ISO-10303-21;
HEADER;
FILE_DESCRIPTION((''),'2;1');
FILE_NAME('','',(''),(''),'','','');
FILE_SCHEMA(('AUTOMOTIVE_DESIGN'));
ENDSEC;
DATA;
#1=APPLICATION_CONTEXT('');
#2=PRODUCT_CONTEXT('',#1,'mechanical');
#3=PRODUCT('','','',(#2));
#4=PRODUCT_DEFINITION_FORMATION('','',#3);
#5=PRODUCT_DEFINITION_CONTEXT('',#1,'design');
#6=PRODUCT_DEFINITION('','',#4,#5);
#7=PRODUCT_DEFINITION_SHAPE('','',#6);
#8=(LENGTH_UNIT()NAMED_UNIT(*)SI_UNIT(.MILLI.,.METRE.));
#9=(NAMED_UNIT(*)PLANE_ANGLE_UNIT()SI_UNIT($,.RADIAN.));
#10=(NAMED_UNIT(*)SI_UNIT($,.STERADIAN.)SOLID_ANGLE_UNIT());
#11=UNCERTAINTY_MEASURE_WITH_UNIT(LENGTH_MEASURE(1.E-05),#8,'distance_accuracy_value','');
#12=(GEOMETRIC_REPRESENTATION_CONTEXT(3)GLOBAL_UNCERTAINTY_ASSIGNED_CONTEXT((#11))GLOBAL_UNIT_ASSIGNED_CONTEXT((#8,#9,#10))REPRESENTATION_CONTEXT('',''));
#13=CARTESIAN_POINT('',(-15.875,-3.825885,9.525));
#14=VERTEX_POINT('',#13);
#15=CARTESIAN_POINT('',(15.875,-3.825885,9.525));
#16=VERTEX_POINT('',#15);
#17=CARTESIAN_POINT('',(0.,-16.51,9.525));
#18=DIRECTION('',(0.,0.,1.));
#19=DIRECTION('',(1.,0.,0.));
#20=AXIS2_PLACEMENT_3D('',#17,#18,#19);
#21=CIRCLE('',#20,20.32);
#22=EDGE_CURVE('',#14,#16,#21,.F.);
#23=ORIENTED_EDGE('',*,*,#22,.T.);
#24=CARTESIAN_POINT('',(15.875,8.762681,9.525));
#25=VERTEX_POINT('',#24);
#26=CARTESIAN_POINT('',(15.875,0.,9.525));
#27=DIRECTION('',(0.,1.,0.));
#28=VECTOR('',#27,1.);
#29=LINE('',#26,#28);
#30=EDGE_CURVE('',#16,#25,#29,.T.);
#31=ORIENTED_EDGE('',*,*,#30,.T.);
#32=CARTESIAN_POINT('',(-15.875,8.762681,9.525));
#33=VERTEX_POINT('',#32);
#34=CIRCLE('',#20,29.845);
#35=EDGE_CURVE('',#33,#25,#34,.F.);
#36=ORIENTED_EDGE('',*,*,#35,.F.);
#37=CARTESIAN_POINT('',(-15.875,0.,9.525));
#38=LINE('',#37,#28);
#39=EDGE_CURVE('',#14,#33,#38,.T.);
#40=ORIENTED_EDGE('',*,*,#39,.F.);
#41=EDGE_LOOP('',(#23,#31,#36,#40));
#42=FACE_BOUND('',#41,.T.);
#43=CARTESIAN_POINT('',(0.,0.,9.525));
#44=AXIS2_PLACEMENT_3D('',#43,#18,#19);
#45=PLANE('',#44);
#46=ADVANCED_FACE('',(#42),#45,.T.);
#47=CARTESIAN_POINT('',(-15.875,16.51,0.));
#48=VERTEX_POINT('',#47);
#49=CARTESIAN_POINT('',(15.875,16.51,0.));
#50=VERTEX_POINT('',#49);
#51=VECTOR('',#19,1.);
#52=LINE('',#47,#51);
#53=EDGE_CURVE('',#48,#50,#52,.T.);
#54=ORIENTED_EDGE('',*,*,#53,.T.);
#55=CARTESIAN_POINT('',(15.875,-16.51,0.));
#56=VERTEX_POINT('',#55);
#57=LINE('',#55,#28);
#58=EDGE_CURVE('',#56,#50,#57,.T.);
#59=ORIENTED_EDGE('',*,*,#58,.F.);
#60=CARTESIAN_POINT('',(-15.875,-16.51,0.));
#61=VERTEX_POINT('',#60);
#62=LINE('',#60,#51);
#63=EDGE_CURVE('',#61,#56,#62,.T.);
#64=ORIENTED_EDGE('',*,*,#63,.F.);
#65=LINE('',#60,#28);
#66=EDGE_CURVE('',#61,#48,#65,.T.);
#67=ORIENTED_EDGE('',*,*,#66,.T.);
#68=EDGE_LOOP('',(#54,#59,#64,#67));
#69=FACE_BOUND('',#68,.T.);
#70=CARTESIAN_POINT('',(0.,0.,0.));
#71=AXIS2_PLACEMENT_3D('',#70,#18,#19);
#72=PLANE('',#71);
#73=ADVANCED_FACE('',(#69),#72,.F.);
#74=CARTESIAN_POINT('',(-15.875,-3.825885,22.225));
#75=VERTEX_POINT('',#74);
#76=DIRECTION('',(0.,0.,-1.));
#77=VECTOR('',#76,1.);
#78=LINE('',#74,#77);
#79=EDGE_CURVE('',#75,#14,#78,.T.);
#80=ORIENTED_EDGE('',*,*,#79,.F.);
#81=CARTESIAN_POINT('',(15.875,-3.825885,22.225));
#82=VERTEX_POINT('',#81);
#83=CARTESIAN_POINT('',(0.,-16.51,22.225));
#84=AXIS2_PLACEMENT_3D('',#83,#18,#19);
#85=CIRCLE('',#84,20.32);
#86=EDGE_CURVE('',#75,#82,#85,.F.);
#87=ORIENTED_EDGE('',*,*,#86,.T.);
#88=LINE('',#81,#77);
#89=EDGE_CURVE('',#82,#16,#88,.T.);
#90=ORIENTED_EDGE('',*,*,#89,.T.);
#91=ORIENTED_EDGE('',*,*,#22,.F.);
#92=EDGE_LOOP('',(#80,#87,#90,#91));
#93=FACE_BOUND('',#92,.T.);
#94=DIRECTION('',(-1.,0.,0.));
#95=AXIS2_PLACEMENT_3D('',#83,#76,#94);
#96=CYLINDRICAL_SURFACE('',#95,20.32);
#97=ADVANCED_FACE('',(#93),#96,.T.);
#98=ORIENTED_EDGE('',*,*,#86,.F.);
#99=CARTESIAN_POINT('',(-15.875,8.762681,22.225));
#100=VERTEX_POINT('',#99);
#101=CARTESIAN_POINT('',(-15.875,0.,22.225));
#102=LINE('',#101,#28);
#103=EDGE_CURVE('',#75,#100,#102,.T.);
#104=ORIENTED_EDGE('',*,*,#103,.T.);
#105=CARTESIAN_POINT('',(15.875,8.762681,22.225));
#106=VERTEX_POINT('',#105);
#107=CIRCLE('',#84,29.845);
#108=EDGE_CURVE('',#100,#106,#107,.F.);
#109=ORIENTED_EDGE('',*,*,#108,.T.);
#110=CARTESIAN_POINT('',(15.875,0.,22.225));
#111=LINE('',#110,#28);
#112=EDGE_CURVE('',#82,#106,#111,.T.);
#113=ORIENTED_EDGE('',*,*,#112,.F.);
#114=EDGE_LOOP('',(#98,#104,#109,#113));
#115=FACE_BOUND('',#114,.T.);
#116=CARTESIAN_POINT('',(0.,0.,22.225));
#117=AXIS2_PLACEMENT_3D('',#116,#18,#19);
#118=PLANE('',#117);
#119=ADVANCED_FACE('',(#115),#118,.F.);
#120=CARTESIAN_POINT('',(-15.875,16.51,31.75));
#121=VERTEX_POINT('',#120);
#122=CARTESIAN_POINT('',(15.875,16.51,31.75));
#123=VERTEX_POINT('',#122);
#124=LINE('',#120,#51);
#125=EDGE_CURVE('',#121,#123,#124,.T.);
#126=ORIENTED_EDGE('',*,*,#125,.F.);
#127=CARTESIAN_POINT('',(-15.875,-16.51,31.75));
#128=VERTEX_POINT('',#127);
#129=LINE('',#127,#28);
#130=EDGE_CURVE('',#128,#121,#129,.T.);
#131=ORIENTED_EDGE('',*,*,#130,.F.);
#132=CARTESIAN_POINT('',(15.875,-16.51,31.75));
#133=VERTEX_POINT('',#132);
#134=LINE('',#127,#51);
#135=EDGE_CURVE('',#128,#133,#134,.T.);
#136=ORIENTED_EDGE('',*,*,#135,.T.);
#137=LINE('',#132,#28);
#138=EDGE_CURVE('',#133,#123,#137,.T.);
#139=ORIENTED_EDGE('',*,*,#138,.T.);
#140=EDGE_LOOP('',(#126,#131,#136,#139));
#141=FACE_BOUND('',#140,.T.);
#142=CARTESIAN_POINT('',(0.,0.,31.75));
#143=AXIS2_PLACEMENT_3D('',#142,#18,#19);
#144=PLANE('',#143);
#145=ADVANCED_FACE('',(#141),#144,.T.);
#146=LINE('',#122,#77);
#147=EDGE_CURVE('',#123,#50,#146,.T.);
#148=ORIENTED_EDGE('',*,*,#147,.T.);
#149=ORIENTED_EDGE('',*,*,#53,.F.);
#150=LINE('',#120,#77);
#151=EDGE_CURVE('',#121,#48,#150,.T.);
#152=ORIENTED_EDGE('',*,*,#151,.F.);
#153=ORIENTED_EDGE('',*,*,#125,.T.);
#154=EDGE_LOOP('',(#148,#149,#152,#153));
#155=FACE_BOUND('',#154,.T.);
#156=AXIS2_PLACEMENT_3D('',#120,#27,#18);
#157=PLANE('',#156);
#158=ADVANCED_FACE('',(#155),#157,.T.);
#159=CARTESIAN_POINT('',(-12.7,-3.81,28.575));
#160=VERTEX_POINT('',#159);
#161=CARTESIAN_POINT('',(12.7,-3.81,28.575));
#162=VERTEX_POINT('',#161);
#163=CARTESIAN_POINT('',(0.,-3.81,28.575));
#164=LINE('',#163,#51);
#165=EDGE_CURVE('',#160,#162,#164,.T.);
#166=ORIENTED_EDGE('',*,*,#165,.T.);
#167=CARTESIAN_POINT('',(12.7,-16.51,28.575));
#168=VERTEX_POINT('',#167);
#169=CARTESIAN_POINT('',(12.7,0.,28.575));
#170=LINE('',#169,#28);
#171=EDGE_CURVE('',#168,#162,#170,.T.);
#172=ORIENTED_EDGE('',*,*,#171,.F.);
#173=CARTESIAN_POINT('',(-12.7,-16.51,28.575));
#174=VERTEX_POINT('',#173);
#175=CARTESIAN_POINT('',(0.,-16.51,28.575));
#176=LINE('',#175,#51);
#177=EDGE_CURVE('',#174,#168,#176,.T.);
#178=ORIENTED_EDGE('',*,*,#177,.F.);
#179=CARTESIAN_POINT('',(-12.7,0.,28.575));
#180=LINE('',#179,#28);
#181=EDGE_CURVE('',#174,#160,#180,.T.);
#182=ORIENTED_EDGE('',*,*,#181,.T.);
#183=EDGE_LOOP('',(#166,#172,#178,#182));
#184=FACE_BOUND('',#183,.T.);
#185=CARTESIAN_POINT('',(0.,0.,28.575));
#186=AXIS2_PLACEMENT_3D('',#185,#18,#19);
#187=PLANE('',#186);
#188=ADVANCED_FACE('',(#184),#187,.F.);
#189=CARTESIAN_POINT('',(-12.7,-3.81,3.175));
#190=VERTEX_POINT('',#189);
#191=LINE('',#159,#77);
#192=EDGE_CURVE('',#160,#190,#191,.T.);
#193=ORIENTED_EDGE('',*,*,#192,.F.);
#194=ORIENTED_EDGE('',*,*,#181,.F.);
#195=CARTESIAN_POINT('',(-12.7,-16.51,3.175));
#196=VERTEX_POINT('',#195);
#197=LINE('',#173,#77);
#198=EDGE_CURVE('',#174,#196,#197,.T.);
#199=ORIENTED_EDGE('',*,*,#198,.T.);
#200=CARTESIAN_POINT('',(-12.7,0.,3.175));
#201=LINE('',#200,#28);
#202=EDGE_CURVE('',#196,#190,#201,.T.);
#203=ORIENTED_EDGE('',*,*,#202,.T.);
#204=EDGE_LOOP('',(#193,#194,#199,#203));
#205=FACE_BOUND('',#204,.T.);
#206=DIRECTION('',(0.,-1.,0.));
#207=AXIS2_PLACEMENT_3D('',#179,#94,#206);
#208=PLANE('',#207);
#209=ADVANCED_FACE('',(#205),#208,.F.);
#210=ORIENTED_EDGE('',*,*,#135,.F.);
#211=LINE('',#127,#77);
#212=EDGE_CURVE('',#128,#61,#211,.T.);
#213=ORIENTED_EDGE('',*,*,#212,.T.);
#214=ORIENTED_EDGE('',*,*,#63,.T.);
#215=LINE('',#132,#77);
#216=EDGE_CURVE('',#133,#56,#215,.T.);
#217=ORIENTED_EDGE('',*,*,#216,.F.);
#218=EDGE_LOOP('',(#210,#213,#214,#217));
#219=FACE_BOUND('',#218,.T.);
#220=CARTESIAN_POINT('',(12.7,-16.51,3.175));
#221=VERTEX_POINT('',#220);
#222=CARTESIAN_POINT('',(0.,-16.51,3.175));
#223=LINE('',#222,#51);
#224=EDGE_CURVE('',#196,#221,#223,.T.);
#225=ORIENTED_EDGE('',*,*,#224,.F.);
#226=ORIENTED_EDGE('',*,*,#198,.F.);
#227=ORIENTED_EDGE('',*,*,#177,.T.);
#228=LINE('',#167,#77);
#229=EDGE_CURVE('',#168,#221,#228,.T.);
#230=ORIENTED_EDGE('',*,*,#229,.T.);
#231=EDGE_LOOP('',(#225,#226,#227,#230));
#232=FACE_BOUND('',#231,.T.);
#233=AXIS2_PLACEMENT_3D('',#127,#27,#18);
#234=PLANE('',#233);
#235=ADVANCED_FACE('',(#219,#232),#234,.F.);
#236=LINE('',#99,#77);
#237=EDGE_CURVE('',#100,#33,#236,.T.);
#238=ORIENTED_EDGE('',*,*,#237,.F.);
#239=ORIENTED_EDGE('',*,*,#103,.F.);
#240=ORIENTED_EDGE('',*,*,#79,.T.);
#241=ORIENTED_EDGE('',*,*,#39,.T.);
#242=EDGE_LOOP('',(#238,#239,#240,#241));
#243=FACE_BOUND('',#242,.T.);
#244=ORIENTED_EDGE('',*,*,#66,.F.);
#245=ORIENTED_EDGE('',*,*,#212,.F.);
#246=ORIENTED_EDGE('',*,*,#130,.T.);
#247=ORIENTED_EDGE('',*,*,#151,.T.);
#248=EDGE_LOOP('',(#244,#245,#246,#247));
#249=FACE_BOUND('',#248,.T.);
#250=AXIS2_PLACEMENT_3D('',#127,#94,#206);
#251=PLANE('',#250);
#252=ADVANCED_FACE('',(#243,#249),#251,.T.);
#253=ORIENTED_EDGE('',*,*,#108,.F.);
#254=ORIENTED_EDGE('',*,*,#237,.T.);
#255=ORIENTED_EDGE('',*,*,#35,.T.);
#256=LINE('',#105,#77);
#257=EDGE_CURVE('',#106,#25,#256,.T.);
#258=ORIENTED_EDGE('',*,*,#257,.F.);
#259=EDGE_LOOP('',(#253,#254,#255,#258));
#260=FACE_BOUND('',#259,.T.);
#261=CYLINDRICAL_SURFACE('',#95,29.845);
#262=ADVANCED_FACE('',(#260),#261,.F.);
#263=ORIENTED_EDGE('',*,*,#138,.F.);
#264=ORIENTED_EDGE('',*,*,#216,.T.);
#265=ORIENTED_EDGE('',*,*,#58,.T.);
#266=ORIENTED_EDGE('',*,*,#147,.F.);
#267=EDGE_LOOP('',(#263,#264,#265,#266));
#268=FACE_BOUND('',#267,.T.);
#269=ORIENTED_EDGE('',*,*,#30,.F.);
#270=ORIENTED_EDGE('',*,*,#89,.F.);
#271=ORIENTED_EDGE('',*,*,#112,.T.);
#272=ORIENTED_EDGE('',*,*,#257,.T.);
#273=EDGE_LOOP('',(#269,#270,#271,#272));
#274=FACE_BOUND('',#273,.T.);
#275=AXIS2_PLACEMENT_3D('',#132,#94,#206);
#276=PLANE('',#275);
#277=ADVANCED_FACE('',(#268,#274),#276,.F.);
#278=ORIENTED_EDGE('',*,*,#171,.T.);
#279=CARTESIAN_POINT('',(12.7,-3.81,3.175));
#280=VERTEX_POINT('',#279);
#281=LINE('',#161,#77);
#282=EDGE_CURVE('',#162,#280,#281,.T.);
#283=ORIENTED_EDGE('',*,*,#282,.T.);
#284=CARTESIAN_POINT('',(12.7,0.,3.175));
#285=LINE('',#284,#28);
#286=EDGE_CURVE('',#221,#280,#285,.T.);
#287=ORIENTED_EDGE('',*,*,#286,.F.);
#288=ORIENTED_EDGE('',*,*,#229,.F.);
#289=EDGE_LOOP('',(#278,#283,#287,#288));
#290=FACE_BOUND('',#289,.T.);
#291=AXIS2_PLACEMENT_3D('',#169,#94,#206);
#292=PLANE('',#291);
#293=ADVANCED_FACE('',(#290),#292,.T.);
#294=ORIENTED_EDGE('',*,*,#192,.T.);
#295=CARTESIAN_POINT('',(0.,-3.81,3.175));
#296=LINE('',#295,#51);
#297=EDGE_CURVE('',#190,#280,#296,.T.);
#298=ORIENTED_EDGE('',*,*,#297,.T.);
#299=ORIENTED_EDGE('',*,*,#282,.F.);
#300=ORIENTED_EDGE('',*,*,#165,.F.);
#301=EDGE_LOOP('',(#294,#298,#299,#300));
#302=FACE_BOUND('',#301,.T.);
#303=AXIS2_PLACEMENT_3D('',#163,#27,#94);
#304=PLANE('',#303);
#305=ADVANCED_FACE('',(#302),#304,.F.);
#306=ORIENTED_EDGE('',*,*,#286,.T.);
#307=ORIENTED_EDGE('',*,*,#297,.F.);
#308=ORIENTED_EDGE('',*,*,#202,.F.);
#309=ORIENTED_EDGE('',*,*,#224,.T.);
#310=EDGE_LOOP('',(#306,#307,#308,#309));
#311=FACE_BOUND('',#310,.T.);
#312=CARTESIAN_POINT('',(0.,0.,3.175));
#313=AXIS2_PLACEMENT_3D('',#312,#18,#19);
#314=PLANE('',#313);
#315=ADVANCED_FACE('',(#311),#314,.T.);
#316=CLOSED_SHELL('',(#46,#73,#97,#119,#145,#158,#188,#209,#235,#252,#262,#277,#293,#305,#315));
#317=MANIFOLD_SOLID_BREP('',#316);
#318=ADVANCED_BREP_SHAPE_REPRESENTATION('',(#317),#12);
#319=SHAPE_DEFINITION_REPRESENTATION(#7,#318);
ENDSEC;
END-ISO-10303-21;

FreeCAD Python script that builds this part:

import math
import FreeCAD as App
import Part
import Sketcher
Q = App.Units.Quantity

doc = App.newDocument("Part")
params = doc.addObject("Spreadsheet::Sheet", "Params")
for row, (alias, value) in enumerate([
    ("sketch1_height", "1.3 in"),
    ("sketch1_width", "1.25 in"),
    ("pad1_length", "1.25 in"),
    ("sketch2_width", "1 in"),
    ("sketch2_height", "0.5 in"),
    ("pocket1_length", "1 in"),
    ("sketch3_radius", "0.8 in"),
    ("sketch3_radius2", "1.175 in"),
    ("pocket2_length", "0.5 in"),
], start=1):
    params.set(f"A{row}", alias)
    params.set(f"B{row}", "=" + value)
    params.setAlias(f"B{row}", alias)

body = doc.addObject("PartDesign::Body", "Body")

sketch1 = doc.addObject("Sketcher::SketchObject", "Sketch")
body.addObject(sketch1)
sketch1.AttachmentSupport = (doc.XY_Plane, [""])
sketch1.MapMode = "FlatFace"
sketch1.addGeometry([
    Part.LineSegment(App.Vector(-16, 17, 0), App.Vector(-16, -17, 0)),
    Part.LineSegment(App.Vector(-16, -17, 0), App.Vector(16, -17, 0)),
    Part.LineSegment(App.Vector(16, -17, 0), App.Vector(16, 17, 0)),
    Part.LineSegment(App.Vector(16, 17, 0), App.Vector(-16, 17, 0)),
], False)
sketch1.addConstraint([
    Sketcher.Constraint("Coincident", 0, 2, 1, 1),
    Sketcher.Constraint("Coincident", 1, 2, 2, 1),
    Sketcher.Constraint("Coincident", 2, 2, 3, 1),
    Sketcher.Constraint("Coincident", 3, 2, 0, 1),
    Sketcher.Constraint("Vertical", 0),
    Sketcher.Constraint("Horizontal", 1),
    Sketcher.Constraint("Vertical", 2),
    Sketcher.Constraint("Horizontal", 3),
    Sketcher.Constraint("Symmetric", 0, 2, 2, 2, -1, 1),
    Sketcher.Constraint("DistanceY", 0, 2, 0, 1, Q("1.3 in")),
    Sketcher.Constraint("DistanceX", 1, 1, 1, 2, Q("1.25 in")),
])
sketch1.setExpression("Constraints[9]", "Params.sketch1_height")
sketch1.setExpression("Constraints[10]", "Params.sketch1_width")
pad1 = doc.addObject("PartDesign::Pad", "Pad")
body.addObject(pad1)
pad1.Profile = sketch1
pad1.setExpression("Length", "Params.pad1_length")

sketch2 = doc.addObject("Sketcher::SketchObject", "Sketch001")
body.addObject(sketch2)
sketch2.AttachmentSupport = (doc.XY_Plane, [""])
sketch2.MapMode = "FlatFace"
sketch2.AttachmentOffset = App.Placement(App.Vector(0, 0, 0.125 * 25.4), App.Rotation())
sketch2.addGeometry([
    Part.LineSegment(App.Vector(-13, -4, 0), App.Vector(-13, -17, 0)),
    Part.LineSegment(App.Vector(-13, -17, 0), App.Vector(13, -17, 0)),
    Part.LineSegment(App.Vector(13, -17, 0), App.Vector(13, -4, 0)),
    Part.LineSegment(App.Vector(13, -4, 0), App.Vector(-13, -4, 0)),
], False)
sketch2.addConstraint([
    Sketcher.Constraint("Coincident", 0, 2, 1, 1),
    Sketcher.Constraint("Coincident", 1, 2, 2, 1),
    Sketcher.Constraint("Coincident", 2, 2, 3, 1),
    Sketcher.Constraint("Coincident", 3, 2, 0, 1),
    Sketcher.Constraint("Vertical", 0),
    Sketcher.Constraint("Horizontal", 1),
    Sketcher.Constraint("Vertical", 2),
    Sketcher.Constraint("Horizontal", 3),
    Sketcher.Constraint("DistanceX", 1, 1, 1, 2, Q("1 in")),
    Sketcher.Constraint("DistanceY", 0, 2, 0, 1, Q("0.5 in")),
    Sketcher.Constraint("DistanceX", 0, 2, -1, 1, Q("0.5 in")),
    Sketcher.Constraint("DistanceY", 0, 2, -1, 1, Q("0.65 in")),
])
sketch2.setExpression("Constraints[8]", "Params.sketch2_width")
sketch2.setExpression("Constraints[9]", "Params.sketch2_height")
pocket1 = doc.addObject("PartDesign::Pocket", "Pocket")
body.addObject(pocket1)
pocket1.Profile = sketch2
pocket1.setExpression("Length", "Params.pocket1_length")
pocket1.Reversed = True

sketch3 = doc.addObject("Sketcher::SketchObject", "Sketch002")
body.addObject(sketch3)
sketch3.AttachmentSupport = (doc.XY_Plane, [""])
sketch3.MapMode = "FlatFace"
sketch3.AttachmentOffset = App.Placement(App.Vector(0, 0, 0.375 * 25.4), App.Rotation())
sketch3.addGeometry([
    Part.LineSegment(App.Vector(-16, 9, 0), App.Vector(-16, -4, 0)),
    Part.ArcOfCircle(Part.Circle(App.Vector(0, -17, 0), App.Vector(0, 0, 1), 20), math.radians(39), math.radians(141)),
    Part.LineSegment(App.Vector(16, -4, 0), App.Vector(16, 9, 0)),
    Part.ArcOfCircle(Part.Circle(App.Vector(0, -17, 0), App.Vector(0, 0, 1), 30), math.radians(58), math.radians(122)),
], False)
sketch3.addConstraint([
    Sketcher.Constraint("Coincident", 0, 2, 1, 2),
    Sketcher.Constraint("Coincident", 1, 1, 2, 1),
    Sketcher.Constraint("Coincident", 2, 2, 3, 1),
    Sketcher.Constraint("Coincident", 3, 2, 0, 1),
    Sketcher.Constraint("Vertical", 0),
    Sketcher.Constraint("Vertical", 2),
    Sketcher.Constraint("Coincident", 3, 3, 1, 3),
    Sketcher.Constraint("Symmetric", 0, 2, 1, 1, -2),
    Sketcher.Constraint("Radius", 1, Q("0.8 in")),
    Sketcher.Constraint("Radius", 3, Q("1.175 in")),
    Sketcher.Constraint("DistanceY", 1, 3, -1, 1, Q("0.65 in")),
    Sketcher.Constraint("DistanceX", 0, 2, 1, 1, Q("1.25 in")),
])
sketch3.setExpression("Constraints[8]", "Params.sketch3_radius")
sketch3.setExpression("Constraints[9]", "Params.sketch3_radius2")
pocket2 = doc.addObject("PartDesign::Pocket", "Pocket001")
body.addObject(pocket2)
pocket2.Profile = sketch3
pocket2.setExpression("Length", "Params.pocket2_length")
pocket2.Reversed = True

doc.recompute()
